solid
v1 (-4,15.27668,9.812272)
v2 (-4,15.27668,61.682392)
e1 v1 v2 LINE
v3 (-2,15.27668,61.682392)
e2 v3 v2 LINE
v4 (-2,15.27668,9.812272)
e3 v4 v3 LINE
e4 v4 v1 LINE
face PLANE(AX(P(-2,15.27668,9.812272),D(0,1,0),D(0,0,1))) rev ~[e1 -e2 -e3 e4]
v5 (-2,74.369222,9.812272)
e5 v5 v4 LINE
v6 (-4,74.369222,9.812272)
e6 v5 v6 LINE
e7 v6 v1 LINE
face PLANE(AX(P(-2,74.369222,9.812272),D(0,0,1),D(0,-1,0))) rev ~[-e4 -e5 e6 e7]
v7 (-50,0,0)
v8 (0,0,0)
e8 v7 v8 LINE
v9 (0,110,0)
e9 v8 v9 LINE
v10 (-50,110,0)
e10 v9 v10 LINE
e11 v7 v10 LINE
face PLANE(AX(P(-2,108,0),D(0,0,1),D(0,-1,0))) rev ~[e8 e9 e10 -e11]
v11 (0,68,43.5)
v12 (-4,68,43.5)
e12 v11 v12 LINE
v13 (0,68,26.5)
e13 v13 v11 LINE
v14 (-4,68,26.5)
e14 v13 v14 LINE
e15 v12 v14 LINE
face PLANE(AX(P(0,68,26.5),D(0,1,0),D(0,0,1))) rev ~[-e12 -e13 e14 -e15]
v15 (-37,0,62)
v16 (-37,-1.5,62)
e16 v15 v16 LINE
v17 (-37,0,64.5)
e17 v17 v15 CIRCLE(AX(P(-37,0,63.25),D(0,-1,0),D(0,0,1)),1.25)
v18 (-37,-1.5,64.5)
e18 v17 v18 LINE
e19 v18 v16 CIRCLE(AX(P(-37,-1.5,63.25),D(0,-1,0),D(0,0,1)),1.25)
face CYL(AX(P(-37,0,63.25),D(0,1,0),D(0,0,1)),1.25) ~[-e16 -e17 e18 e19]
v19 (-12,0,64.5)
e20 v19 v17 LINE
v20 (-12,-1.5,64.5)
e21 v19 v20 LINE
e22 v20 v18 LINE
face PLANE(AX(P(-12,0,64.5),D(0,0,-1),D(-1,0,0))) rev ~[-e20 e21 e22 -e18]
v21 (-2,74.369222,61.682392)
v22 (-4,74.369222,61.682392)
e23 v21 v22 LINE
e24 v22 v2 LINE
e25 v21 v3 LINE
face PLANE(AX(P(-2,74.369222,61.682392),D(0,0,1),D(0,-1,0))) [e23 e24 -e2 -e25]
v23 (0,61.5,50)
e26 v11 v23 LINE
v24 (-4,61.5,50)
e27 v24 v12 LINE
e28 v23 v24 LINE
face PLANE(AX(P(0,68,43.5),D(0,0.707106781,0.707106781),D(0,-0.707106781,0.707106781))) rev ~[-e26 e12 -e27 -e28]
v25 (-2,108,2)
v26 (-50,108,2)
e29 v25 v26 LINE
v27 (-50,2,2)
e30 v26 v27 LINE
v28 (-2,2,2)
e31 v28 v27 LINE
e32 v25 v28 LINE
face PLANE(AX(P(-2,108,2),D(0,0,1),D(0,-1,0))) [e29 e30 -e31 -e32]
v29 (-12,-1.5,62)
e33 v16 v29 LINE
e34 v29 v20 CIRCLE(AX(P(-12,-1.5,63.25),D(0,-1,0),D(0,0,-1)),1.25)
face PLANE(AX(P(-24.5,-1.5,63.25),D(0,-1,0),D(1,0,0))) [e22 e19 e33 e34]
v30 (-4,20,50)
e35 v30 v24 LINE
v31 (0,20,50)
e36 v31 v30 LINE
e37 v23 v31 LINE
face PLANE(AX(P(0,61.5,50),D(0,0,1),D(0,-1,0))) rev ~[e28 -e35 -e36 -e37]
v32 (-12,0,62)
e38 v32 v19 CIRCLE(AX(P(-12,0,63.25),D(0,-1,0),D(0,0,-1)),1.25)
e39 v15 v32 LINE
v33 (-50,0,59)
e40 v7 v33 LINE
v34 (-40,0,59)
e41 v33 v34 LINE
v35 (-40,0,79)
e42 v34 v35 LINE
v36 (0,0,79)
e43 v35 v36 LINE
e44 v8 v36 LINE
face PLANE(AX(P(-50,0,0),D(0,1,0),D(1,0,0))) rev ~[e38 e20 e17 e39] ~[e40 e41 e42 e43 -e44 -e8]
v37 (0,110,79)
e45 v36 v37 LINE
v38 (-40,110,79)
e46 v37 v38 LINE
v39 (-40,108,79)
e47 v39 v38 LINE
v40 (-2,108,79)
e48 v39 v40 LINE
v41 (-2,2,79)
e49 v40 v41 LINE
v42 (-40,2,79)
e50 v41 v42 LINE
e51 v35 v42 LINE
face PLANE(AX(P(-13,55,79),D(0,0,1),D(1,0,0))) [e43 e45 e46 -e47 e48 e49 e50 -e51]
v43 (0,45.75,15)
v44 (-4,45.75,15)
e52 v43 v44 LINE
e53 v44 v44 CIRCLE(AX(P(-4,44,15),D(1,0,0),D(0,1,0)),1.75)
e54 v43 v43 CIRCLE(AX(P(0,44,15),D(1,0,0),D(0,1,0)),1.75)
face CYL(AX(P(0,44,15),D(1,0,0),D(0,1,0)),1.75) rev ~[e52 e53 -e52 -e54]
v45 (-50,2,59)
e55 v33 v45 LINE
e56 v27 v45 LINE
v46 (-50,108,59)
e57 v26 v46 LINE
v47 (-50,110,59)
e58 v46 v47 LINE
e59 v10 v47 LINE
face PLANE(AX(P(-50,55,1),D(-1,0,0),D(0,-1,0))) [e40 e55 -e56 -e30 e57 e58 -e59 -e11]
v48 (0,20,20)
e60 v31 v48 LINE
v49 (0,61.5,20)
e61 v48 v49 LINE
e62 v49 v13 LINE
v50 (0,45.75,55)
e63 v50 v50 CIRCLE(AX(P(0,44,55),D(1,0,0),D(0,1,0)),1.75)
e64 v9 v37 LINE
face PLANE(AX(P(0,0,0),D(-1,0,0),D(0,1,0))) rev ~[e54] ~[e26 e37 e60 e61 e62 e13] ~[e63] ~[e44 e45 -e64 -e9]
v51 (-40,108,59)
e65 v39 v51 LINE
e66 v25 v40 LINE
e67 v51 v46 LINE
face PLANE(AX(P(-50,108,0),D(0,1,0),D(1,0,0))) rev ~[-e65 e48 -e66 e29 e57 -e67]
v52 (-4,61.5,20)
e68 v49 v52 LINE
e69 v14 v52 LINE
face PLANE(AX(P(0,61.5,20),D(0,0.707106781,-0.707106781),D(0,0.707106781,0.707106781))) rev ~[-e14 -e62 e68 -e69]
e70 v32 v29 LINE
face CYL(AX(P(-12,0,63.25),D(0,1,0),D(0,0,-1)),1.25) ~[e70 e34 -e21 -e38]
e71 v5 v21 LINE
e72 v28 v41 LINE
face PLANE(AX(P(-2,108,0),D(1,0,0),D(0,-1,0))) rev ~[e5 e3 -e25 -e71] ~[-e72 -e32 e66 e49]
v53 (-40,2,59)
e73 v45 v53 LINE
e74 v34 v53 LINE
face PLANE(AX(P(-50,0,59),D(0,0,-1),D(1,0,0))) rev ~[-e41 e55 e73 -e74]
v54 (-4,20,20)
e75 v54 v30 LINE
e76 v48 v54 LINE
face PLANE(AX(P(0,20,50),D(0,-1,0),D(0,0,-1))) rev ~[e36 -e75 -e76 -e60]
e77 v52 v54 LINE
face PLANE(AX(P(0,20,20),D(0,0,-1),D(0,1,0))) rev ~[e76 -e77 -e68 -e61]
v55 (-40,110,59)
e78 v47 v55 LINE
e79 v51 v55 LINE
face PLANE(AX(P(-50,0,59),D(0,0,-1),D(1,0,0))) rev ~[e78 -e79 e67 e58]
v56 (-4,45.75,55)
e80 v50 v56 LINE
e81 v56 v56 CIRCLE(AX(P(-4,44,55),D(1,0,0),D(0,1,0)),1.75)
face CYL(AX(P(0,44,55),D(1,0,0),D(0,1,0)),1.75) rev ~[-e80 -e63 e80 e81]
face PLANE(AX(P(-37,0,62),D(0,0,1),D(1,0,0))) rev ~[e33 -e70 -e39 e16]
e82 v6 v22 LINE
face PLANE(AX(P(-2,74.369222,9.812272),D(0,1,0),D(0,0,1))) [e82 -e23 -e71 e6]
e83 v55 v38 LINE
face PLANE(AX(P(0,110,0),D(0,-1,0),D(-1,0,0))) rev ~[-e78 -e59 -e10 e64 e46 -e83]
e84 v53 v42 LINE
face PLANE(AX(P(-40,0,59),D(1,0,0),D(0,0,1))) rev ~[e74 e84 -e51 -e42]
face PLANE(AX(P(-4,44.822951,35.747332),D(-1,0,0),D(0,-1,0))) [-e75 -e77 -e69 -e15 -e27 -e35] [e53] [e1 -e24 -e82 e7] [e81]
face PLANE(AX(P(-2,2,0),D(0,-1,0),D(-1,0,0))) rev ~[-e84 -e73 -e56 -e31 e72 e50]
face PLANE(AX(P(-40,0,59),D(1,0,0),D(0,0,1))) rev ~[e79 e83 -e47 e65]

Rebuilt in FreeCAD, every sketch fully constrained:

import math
import FreeCAD as App
import Part
import Sketcher

V = App.Vector

doc = App.newDocument("Part")
body = doc.addObject("PartDesign::Body", "Body")

# Sketch on XY plane
sketch1 = doc.addObject("Sketcher::SketchObject", "Sketch")
body.addObject(sketch1)
sketch1.AttachmentSupport = (doc.XY_Plane, [""])
sketch1.MapMode = "FlatFace"
sketch1.addGeometry([
    Part.LineSegment(V(0, 110, 0), V(-50, 110, 0)),  # 0
    Part.LineSegment(V(-50, 110, 0), V(-50, 108, 0)),  # 1
    Part.LineSegment(V(-50, 108, 0), V(-2, 108, 0)),  # 2
    Part.LineSegment(V(-2, 108, 0), V(-2, 2, 0)),  # 3
    Part.LineSegment(V(-2, 2, 0), V(-50, 2, 0)),  # 4
    Part.LineSegment(V(-50, 2, 0), V(-50, 0, 0)),  # 5
    Part.LineSegment(V(-50, 0, 0), V(0, 0, 0)),  # 6
    Part.LineSegment(V(0, 0, 0), V(0, 110, 0)),  # 7
], False)
sketch1.addConstraint([
    Sketcher.Constraint("Coincident", 0, 2, 1, 1),
    Sketcher.Constraint("Coincident", 1, 2, 2, 1),
    Sketcher.Constraint("Coincident", 2, 2, 3, 1),
    Sketcher.Constraint("Coincident", 3, 2, 4, 1),
    Sketcher.Constraint("Coincident", 4, 2, 5, 1),
    Sketcher.Constraint("Coincident", 5, 2, 6, 1),
    Sketcher.Constraint("Coincident", 6, 2, 7, 1),
    Sketcher.Constraint("Coincident", 7, 2, 0, 1),
    Sketcher.Constraint("Horizontal", 0),
    Sketcher.Constraint("Vertical", 1),
    Sketcher.Constraint("Horizontal", 2),
    Sketcher.Constraint("Vertical", 3),
    Sketcher.Constraint("Horizontal", 4),
    Sketcher.Constraint("Vertical", 5),
    Sketcher.Constraint("Horizontal", 6),
    Sketcher.Constraint("Vertical", 7),
    Sketcher.Constraint("Coincident", 6, 2, -1, 1),
    Sketcher.Constraint("Vertical", 1, 2, 4, 2),
    Sketcher.Constraint("Equal", 1, 5),
    Sketcher.Constraint("DistanceX", 0, 2, 0, 1, 50.0),
    Sketcher.Constraint("DistanceX", 2, 1, 2, 2, 48.0),
    Sketcher.Constraint("DistanceY", 1, 2, 1, 1, 2.0),
    Sketcher.Constraint("DistanceY", 3, 2, 3, 1, 106.0),
])
pad1 = doc.addObject("PartDesign::Pad", "Pad")
body.addObject(pad1)
pad1.Profile = sketch1
pad1.Length = 79

# Sketch on YZ plane
sketch2 = doc.addObject("Sketcher::SketchObject", "Sketch001")
body.addObject(sketch2)
sketch2.AttachmentSupport = (doc.YZ_Plane, [""])
sketch2.MapMode = "FlatFace"
sketch2.AttachmentOffset = App.Placement(V(0, 0, -2), App.Rotation())
sketch2.addGeometry([
    Part.LineSegment(V(108, 2, 0), V(108, 0, 0)),
    Part.LineSegment(V(108, 0, 0), V(2, 0, 0)),
    Part.LineSegment(V(2, 0, 0), V(2, 2, 0)),
    Part.LineSegment(V(2, 2, 0), V(108, 2, 0)),
], False)
sketch2.addConstraint([
    Sketcher.Constraint("Coincident", 0, 2, 1, 1),
    Sketcher.Constraint("Coincident", 1, 2, 2, 1),
    Sketcher.Constraint("Coincident", 2, 2, 3, 1),
    Sketcher.Constraint("Coincident", 3, 2, 0, 1),
    Sketcher.Constraint("Vertical", 0),
    Sketcher.Constraint("Horizontal", 1),
    Sketcher.Constraint("Vertical", 2),
    Sketcher.Constraint("Horizontal", 3),
    Sketcher.Constraint("PointOnObject", 0, 2, -1),
    Sketcher.Constraint("DistanceX", 1, 2, 1, 1, 106.0),
    Sketcher.Constraint("DistanceY", 0, 2, 0, 1, 2.0),
    Sketcher.Constraint("DistanceX", -1, 1, 0, 2, 108.0),
])
pad2 = doc.addObject("PartDesign::Pad", "Pad001")
body.addObject(pad2)
pad2.Profile = sketch2
pad2.Length = 48
pad2.Reversed = True

# Sketch on XZ plane
sketch3 = doc.addObject("Sketcher::SketchObject", "Sketch002")
body.addObject(sketch3)
sketch3.AttachmentSupport = (doc.XZ_Plane, [""])
sketch3.MapMode = "FlatFace"
sketch3.addGeometry([
    Part.LineSegment(V(-50, 79, 0), V(-50, 59, 0)),
    Part.LineSegment(V(-50, 59, 0), V(-40, 59, 0)),
    Part.LineSegment(V(-40, 59, 0), V(-40, 79, 0)),
    Part.LineSegment(V(-40, 79, 0), V(-50, 79, 0)),
], False)
sketch3.addConstraint([
    Sketcher.Constraint("Coincident", 0, 2, 1, 1),
    Sketcher.Constraint("Coincident", 1, 2, 2, 1),
    Sketcher.Constraint("Coincident", 2, 2, 3, 1),
    Sketcher.Constraint("Coincident", 3, 2, 0, 1),
    Sketcher.Constraint("Vertical", 0),
    Sketcher.Constraint("Horizontal", 1),
    Sketcher.Constraint("Vertical", 2),
    Sketcher.Constraint("Horizontal", 3),
    Sketcher.Constraint("DistanceX", 1, 1, 1, 2, 10.0),
    Sketcher.Constraint("DistanceY", 0, 2, 0, 1, 20.0),
    Sketcher.Constraint("DistanceX", 0, 2, -1, 1, 50.0),
    Sketcher.Constraint("DistanceY", -1, 1, 0, 2, 59.0),
])
pocket1 = doc.addObject("PartDesign::Pocket", "Pocket")
body.addObject(pocket1)
pocket1.Profile = sketch3
pocket1.Length = 150

# Sketch on YZ plane
sketch4 = doc.addObject("Sketcher::SketchObject", "Sketch003")
body.addObject(sketch4)
sketch4.AttachmentSupport = (doc.YZ_Plane, [""])
sketch4.MapMode = "FlatFace"
sketch4.AttachmentOffset = App.Placement(V(0, 0, -2), App.Rotation())
sketch4.addGeometry([
    Part.LineSegment(V(74, 62, 0), V(74, 10, 0)),
    Part.LineSegment(V(74, 10, 0), V(15, 10, 0)),
    Part.LineSegment(V(15, 10, 0), V(15, 62, 0)),
    Part.LineSegment(V(15, 62, 0), V(74, 62, 0)),
], False)
sketch4.addConstraint([
    Sketcher.Constraint("Coincident", 0, 2, 1, 1),
    Sketcher.Constraint("Coincident", 1, 2, 2, 1),
    Sketcher.Constraint("Coincident", 2, 2, 3, 1),
    Sketcher.Constraint("Coincident", 3, 2, 0, 1),
    Sketcher.Constraint("Vertical", 0),
    Sketcher.Constraint("Horizontal", 1),
    Sketcher.Constraint("Vertical", 2),
    Sketcher.Constraint("Horizontal", 3),
    Sketcher.Constraint("DistanceX", 1, 2, 1, 1, 59.092542),
    Sketcher.Constraint("DistanceY", 0, 2, 0, 1, 51.87012),
    Sketcher.Constraint("DistanceX", -1, 1, 0, 2, 74.369222),
    Sketcher.Constraint("DistanceY", -1, 1, 0, 2, 9.812272),
])
pad3 = doc.addObject("PartDesign::Pad", "Pad002")
body.addObject(pad3)
pad3.Profile = sketch4
pad3.Length = 2
pad3.Reversed = True

# Sketch on YZ plane
sketch5 = doc.addObject("Sketcher::SketchObject", "Sketch004")
body.addObject(sketch5)
sketch5.AttachmentSupport = (doc.YZ_Plane, [""])
sketch5.MapMode = "FlatFace"
sketch5.addGeometry([
    Part.LineSegment(V(61.5, 50, 0), V(20, 50, 0)),  # 0
    Part.LineSegment(V(20, 50, 0), V(20, 20, 0)),  # 1
    Part.LineSegment(V(20, 20, 0), V(61.5, 20, 0)),  # 2
    Part.LineSegment(V(61.5, 20, 0), V(68, 26.5, 0)),  # 3
    Part.LineSegment(V(68, 26.5, 0), V(68, 43.5, 0)),  # 4
    Part.LineSegment(V(68, 43.5, 0), V(61.5, 50, 0)),  # 5
    Part.Circle(V(44, 55, 0), V(0, 0, 1), 1.8),  # 6
    Part.Circle(V(44, 15, 0), V(0, 0, 1), 1.8),  # 7
], False)
sketch5.addConstraint([
    Sketcher.Constraint("Coincident", 0, 2, 1, 1),
    Sketcher.Constraint("Coincident", 1, 2, 2, 1),
    Sketcher.Constraint("Coincident", 2, 2, 3, 1),
    Sketcher.Constraint("Coincident", 3, 2, 4, 1),
    Sketcher.Constraint("Coincident", 4, 2, 5, 1),
    Sketcher.Constraint("Coincident", 5, 2, 0, 1),
    Sketcher.Constraint("Horizontal", 0),
    Sketcher.Constraint("Vertical", 1),
    Sketcher.Constraint("Horizontal", 2),
    Sketcher.Constraint("Vertical", 4),
    Sketcher.Constraint("Equal", 6, 7),
    Sketcher.Constraint("Perpendicular", 3, 5),
    Sketcher.Constraint("Vertical", 6, 3, 7, 3),
    Sketcher.Constraint("Vertical", 2, 2, 5, 2),
    Sketcher.Constraint("Equal", 3, 5),
    Sketcher.Constraint("Diameter", 6, 3.5),
    Sketcher.Constraint("DistanceY", 1, 2, 1, 1, 30.0),
    Sketcher.Constraint("DistanceY", 4, 1, 4, 2, 17.0),
    Sketcher.Constraint("DistanceX", 0, 2, 0, 1, 41.5),
    Sketcher.Constraint("DistanceX", -1, 1, 6, 3, 44.0),
    Sketcher.Constraint("DistanceY", -1, 1, 6, 3, 55.0),
    Sketcher.Constraint("DistanceY", -1, 1, 7, 3, 15.0),
    Sketcher.Constraint("DistanceX", -1, 1, 0, 2, 20.0),
    Sketcher.Constraint("DistanceY", -1, 1, 0, 2, 50.0),
])
pocket2 = doc.addObject("PartDesign::Pocket", "Pocket001")
body.addObject(pocket2)
pocket2.Profile = sketch5
pocket2.Length = 25

# Sketch on XZ plane
sketch6 = doc.addObject("Sketcher::SketchObject", "Sketch005")
body.addObject(sketch6)
sketch6.AttachmentSupport = (doc.XZ_Plane, [""])
sketch6.MapMode = "FlatFace"
sketch6.addGeometry([
    Part.LineSegment(V(-37, 62, 0), V(-12, 62, 0)),
    Part.ArcOfCircle(Part.Circle(V(-12, 63.2, 0), V(0, 0, 1), 1.2), math.radians(-90), math.radians(90)),
    Part.LineSegment(V(-12, 64.5, 0), V(-37, 64.5, 0)),
    Part.ArcOfCircle(Part.Circle(V(-37, 63.2, 0), V(0, 0, 1), 1.2), math.radians(90), math.radians(270)),
], False)
sketch6.addConstraint([
    Sketcher.Constraint("Tangent", 0, 2, 1, 1),
    Sketcher.Constraint("Tangent", 1, 2, 2, 1),
    Sketcher.Constraint("Tangent", 2, 2, 3, 1),
    Sketcher.Constraint("Tangent", 3, 2, 0, 1),
    Sketcher.Constraint("Horizontal", 0),
    Sketcher.Constraint("Horizontal", 2),
    Sketcher.Constraint("DistanceX", 0, 1, 0, 2, 25.0),
    Sketcher.Constraint("Radius", 1, 1.25),
    Sketcher.Constraint("DistanceX", 1, 3, -1, 1, 12.0),
    Sketcher.Constraint("DistanceY", -1, 1, 0, 2, 62.0),
])
pad4 = doc.addObject("PartDesign::Pad", "Pad003")
body.addObject(pad4)
pad4.Profile = sketch6
pad4.Length = 1.5

doc.recompute()
